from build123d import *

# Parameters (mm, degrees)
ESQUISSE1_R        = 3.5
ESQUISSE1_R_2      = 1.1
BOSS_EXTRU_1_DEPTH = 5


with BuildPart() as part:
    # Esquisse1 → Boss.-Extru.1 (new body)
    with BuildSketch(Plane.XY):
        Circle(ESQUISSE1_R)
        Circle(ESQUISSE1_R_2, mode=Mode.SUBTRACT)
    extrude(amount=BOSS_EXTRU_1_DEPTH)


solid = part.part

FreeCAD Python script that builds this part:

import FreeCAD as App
import Part
import Sketcher

V = App.Vector

doc = App.newDocument("Part")
body = doc.addObject("PartDesign::Body", "Body")

sketch1 = body.newObject("Sketcher::SketchObject", "Sketch")
sketch1.AttachmentSupport = (doc.getObject("XY_Plane"), [""])
sketch1.MapMode = "FlatFace"
sketch1.addGeometry([
    Part.Circle(V(0, 0, 0), V(0, 0, 1), 3.5),
    Part.Circle(V(0, 0, 0), V(0, 0, 1), 1.1),
], False)
sketch1.addConstraint([
    Sketcher.Constraint("Coincident", 0, 3, -1, 1),
    Sketcher.Constraint("Coincident", 1, 3, -1, 1),
    Sketcher.Constraint("Diameter", 0, 7.0),
    Sketcher.Constraint("Diameter", 1, 2.2),
])
pad1 = body.newObject("PartDesign::Pad", "Pad")
pad1.Profile = sketch1
pad1.Length = 5

doc.recompute()
